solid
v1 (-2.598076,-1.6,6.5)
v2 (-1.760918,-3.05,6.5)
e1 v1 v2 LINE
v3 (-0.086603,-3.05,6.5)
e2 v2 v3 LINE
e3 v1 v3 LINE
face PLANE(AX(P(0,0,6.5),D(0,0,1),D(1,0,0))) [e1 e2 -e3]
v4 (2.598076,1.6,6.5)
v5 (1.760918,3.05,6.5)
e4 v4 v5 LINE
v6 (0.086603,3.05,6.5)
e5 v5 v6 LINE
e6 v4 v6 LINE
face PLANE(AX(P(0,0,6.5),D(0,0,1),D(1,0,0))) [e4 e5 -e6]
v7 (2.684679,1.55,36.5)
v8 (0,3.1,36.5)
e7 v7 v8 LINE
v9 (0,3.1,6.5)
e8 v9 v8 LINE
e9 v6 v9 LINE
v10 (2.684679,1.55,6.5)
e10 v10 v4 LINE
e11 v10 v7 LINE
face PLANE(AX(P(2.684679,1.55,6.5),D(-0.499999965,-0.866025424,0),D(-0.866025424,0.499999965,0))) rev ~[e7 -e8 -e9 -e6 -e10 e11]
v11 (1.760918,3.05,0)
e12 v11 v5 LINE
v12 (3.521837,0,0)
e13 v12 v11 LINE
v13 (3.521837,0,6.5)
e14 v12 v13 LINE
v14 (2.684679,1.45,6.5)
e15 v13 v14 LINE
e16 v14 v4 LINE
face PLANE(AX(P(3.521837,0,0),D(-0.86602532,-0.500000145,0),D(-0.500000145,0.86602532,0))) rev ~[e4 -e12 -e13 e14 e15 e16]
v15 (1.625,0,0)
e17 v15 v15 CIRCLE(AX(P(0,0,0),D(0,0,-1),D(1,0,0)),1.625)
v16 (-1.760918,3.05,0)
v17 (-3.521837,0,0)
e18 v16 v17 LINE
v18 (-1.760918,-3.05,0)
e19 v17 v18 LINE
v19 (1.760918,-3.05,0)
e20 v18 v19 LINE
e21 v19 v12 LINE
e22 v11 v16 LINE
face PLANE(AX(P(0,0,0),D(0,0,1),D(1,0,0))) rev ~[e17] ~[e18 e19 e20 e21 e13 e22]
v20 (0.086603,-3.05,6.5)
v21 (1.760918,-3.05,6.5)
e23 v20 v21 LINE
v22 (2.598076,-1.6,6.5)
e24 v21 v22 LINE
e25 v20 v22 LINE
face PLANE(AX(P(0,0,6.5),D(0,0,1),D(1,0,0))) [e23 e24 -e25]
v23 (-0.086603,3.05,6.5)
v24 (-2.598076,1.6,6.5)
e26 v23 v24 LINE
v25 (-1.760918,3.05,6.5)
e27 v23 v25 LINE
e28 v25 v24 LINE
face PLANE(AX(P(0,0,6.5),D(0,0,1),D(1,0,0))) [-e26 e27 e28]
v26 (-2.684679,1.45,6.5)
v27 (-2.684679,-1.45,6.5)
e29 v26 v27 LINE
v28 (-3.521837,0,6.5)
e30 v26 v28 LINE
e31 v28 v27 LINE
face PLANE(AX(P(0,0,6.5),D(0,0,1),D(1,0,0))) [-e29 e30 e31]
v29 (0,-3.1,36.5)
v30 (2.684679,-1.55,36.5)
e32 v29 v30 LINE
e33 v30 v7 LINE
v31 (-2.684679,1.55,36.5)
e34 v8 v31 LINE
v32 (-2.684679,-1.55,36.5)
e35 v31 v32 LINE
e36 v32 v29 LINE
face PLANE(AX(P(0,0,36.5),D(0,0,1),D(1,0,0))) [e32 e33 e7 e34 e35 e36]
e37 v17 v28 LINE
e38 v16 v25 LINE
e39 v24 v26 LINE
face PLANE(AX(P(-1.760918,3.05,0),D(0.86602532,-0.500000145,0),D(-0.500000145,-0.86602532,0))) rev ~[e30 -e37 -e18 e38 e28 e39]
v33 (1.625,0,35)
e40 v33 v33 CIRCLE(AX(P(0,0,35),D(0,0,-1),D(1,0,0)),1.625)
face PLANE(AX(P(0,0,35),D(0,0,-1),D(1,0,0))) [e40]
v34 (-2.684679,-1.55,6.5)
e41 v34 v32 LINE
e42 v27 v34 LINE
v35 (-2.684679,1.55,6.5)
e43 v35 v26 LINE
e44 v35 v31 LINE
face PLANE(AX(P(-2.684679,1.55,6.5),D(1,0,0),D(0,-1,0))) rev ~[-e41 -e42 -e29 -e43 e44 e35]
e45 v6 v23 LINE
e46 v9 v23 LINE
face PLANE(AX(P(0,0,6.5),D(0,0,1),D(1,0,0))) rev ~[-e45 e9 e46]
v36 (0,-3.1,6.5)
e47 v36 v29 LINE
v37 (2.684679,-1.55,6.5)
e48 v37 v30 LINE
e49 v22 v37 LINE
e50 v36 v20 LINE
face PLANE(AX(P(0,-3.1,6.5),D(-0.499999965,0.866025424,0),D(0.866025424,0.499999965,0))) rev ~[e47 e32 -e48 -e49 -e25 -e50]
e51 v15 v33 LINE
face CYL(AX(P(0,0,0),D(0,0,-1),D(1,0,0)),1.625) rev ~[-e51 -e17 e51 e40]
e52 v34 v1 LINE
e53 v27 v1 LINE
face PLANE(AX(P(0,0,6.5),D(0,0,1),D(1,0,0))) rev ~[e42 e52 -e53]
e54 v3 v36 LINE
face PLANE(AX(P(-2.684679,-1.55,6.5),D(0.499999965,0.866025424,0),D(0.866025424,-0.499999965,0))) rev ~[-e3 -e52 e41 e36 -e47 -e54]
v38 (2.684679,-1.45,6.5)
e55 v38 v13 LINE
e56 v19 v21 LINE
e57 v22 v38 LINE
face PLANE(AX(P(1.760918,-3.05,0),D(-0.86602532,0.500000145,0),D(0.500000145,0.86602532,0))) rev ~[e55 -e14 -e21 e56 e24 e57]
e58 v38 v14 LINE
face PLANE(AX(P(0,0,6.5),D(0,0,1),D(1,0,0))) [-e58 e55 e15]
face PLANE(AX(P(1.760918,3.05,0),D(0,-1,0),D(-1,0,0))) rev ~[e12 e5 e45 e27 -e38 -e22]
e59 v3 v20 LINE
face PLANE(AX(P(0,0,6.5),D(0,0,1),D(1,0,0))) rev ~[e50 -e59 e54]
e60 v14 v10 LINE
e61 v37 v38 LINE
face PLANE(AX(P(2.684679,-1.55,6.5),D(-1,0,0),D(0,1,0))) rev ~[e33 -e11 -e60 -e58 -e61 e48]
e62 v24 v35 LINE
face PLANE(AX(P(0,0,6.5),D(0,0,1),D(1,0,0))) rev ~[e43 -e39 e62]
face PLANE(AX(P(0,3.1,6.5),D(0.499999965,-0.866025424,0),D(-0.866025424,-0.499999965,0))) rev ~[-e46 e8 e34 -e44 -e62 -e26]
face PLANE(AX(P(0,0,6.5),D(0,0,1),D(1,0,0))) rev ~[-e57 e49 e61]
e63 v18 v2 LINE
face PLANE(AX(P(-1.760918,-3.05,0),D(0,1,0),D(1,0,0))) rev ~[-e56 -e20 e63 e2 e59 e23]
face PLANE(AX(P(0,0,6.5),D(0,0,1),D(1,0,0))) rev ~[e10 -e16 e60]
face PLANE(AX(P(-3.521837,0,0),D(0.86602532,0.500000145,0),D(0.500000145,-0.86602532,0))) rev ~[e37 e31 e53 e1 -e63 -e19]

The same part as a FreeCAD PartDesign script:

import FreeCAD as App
import Part
import Sketcher
Q = App.Units.Quantity


def add_polygon(sketch, points):
    """Adds a closed chain of lines whose ends are joined by coincident constraints."""
    first, n = sketch.GeometryCount, len(points)
    for a, b in zip(points, points[1:] + points[:1]):
        sketch.addGeometry(Part.LineSegment(App.Vector(*a, 0), App.Vector(*b, 0)), False)
    for i in range(n):
        sketch.addConstraint(Sketcher.Constraint("Coincident", first + i, 2, first + (i + 1) % n, 1))

doc = App.newDocument("Part")
body = doc.addObject("PartDesign::Body", "Body")

sketch1 = body.newObject("Sketcher::SketchObject", "Sketch")
sketch1.AttachmentSupport = (doc.getObject("XY_Plane"), [""])
sketch1.MapMode = "FlatFace"
add_polygon(sketch1, [(-3.5, 0), (-1.8, -3), (1.8, -3), (3.5, 0), (1.8, 3), (-1.8, 3)])
sketch1.addConstraint([
    Sketcher.Constraint("Horizontal", 1),
    Sketcher.Constraint("Horizontal", 4),
    Sketcher.Constraint("Symmetric", 0, 2, 3, 2, -1, 1),
    Sketcher.Constraint("Symmetric", 2, 2, 5, 2, -1, 1),
    Sketcher.Constraint("PointOnObject", 2, 2, -1),
    Sketcher.Constraint("Parallel", 2, 5),
    Sketcher.Constraint("Vertical", 1, 2, 3, 2),
    Sketcher.Constraint("Angle", 0, Q("-59.99999 deg")),
    Sketcher.Constraint("DistanceY", 1, 2, 3, 2, Q("6.1 mm")),
    Sketcher.Constraint("DistanceX", 1, 1, 1, 2, Q("3.521836 mm")),
])
pad1 = body.newObject("PartDesign::Pad", "Pad")
pad1.Profile = sketch1
pad1.Length = 6.5

sketch2 = body.newObject("Sketcher::SketchObject", "Sketch001")
sketch2.AttachmentSupport = (doc.getObject("XY_Plane"), [""])
sketch2.MapMode = "FlatFace"
sketch2.AttachmentOffset = App.Placement(App.Vector(0, 0, 6.5), App.Rotation())
add_polygon(sketch2, [(2.7, 1.6), (0, 3.1), (-2.7, 1.6), (-2.7, -1.6), (0, -3.1), (2.7, -1.6)])
sketch2.addConstraint([
    Sketcher.Constraint("Vertical", 2),
    Sketcher.Constraint("Vertical", 5),
    Sketcher.Constraint("Symmetric", 0, 2, 3, 2, -1, 1),
    Sketcher.Constraint("Symmetric", 1, 2, 4, 2, -1, 1),
    Sketcher.Constraint("PointOnObject", 0, 2, -2),
    Sketcher.Constraint("Parallel", 0, 3),
    Sketcher.Constraint("Horizontal", 2, 2, 4, 2),
    Sketcher.Constraint("Angle", 0, Q("150.000002 deg")),
    Sketcher.Constraint("DistanceY", 2, 2, 2, 1, Q("3.1 mm")),
    Sketcher.Constraint("Distance", 0, Q("3.1 mm")),
])
pad2 = body.newObject("PartDesign::Pad", "Pad001")
pad2.Profile = sketch2
pad2.Length = 30

sketch3 = body.newObject("Sketcher::SketchObject", "Sketch002")
sketch3.AttachmentSupport = (doc.getObject("XY_Plane"), [""])
sketch3.MapMode = "FlatFace"
sketch3.addGeometry(Part.Circle(App.Vector(0, 0, 0), App.Vector(0, 0, 1), 1.6), False)
sketch3.addConstraint([
    Sketcher.Constraint("Coincident", 0, 3, -1, 1),
    Sketcher.Constraint("Diameter", 0, Q("3.25 mm")),
])
pocket1 = body.newObject("PartDesign::Pocket", "Pocket")
pocket1.Profile = sketch3
pocket1.Length = 35
pocket1.Reversed = True

doc.recompute()
